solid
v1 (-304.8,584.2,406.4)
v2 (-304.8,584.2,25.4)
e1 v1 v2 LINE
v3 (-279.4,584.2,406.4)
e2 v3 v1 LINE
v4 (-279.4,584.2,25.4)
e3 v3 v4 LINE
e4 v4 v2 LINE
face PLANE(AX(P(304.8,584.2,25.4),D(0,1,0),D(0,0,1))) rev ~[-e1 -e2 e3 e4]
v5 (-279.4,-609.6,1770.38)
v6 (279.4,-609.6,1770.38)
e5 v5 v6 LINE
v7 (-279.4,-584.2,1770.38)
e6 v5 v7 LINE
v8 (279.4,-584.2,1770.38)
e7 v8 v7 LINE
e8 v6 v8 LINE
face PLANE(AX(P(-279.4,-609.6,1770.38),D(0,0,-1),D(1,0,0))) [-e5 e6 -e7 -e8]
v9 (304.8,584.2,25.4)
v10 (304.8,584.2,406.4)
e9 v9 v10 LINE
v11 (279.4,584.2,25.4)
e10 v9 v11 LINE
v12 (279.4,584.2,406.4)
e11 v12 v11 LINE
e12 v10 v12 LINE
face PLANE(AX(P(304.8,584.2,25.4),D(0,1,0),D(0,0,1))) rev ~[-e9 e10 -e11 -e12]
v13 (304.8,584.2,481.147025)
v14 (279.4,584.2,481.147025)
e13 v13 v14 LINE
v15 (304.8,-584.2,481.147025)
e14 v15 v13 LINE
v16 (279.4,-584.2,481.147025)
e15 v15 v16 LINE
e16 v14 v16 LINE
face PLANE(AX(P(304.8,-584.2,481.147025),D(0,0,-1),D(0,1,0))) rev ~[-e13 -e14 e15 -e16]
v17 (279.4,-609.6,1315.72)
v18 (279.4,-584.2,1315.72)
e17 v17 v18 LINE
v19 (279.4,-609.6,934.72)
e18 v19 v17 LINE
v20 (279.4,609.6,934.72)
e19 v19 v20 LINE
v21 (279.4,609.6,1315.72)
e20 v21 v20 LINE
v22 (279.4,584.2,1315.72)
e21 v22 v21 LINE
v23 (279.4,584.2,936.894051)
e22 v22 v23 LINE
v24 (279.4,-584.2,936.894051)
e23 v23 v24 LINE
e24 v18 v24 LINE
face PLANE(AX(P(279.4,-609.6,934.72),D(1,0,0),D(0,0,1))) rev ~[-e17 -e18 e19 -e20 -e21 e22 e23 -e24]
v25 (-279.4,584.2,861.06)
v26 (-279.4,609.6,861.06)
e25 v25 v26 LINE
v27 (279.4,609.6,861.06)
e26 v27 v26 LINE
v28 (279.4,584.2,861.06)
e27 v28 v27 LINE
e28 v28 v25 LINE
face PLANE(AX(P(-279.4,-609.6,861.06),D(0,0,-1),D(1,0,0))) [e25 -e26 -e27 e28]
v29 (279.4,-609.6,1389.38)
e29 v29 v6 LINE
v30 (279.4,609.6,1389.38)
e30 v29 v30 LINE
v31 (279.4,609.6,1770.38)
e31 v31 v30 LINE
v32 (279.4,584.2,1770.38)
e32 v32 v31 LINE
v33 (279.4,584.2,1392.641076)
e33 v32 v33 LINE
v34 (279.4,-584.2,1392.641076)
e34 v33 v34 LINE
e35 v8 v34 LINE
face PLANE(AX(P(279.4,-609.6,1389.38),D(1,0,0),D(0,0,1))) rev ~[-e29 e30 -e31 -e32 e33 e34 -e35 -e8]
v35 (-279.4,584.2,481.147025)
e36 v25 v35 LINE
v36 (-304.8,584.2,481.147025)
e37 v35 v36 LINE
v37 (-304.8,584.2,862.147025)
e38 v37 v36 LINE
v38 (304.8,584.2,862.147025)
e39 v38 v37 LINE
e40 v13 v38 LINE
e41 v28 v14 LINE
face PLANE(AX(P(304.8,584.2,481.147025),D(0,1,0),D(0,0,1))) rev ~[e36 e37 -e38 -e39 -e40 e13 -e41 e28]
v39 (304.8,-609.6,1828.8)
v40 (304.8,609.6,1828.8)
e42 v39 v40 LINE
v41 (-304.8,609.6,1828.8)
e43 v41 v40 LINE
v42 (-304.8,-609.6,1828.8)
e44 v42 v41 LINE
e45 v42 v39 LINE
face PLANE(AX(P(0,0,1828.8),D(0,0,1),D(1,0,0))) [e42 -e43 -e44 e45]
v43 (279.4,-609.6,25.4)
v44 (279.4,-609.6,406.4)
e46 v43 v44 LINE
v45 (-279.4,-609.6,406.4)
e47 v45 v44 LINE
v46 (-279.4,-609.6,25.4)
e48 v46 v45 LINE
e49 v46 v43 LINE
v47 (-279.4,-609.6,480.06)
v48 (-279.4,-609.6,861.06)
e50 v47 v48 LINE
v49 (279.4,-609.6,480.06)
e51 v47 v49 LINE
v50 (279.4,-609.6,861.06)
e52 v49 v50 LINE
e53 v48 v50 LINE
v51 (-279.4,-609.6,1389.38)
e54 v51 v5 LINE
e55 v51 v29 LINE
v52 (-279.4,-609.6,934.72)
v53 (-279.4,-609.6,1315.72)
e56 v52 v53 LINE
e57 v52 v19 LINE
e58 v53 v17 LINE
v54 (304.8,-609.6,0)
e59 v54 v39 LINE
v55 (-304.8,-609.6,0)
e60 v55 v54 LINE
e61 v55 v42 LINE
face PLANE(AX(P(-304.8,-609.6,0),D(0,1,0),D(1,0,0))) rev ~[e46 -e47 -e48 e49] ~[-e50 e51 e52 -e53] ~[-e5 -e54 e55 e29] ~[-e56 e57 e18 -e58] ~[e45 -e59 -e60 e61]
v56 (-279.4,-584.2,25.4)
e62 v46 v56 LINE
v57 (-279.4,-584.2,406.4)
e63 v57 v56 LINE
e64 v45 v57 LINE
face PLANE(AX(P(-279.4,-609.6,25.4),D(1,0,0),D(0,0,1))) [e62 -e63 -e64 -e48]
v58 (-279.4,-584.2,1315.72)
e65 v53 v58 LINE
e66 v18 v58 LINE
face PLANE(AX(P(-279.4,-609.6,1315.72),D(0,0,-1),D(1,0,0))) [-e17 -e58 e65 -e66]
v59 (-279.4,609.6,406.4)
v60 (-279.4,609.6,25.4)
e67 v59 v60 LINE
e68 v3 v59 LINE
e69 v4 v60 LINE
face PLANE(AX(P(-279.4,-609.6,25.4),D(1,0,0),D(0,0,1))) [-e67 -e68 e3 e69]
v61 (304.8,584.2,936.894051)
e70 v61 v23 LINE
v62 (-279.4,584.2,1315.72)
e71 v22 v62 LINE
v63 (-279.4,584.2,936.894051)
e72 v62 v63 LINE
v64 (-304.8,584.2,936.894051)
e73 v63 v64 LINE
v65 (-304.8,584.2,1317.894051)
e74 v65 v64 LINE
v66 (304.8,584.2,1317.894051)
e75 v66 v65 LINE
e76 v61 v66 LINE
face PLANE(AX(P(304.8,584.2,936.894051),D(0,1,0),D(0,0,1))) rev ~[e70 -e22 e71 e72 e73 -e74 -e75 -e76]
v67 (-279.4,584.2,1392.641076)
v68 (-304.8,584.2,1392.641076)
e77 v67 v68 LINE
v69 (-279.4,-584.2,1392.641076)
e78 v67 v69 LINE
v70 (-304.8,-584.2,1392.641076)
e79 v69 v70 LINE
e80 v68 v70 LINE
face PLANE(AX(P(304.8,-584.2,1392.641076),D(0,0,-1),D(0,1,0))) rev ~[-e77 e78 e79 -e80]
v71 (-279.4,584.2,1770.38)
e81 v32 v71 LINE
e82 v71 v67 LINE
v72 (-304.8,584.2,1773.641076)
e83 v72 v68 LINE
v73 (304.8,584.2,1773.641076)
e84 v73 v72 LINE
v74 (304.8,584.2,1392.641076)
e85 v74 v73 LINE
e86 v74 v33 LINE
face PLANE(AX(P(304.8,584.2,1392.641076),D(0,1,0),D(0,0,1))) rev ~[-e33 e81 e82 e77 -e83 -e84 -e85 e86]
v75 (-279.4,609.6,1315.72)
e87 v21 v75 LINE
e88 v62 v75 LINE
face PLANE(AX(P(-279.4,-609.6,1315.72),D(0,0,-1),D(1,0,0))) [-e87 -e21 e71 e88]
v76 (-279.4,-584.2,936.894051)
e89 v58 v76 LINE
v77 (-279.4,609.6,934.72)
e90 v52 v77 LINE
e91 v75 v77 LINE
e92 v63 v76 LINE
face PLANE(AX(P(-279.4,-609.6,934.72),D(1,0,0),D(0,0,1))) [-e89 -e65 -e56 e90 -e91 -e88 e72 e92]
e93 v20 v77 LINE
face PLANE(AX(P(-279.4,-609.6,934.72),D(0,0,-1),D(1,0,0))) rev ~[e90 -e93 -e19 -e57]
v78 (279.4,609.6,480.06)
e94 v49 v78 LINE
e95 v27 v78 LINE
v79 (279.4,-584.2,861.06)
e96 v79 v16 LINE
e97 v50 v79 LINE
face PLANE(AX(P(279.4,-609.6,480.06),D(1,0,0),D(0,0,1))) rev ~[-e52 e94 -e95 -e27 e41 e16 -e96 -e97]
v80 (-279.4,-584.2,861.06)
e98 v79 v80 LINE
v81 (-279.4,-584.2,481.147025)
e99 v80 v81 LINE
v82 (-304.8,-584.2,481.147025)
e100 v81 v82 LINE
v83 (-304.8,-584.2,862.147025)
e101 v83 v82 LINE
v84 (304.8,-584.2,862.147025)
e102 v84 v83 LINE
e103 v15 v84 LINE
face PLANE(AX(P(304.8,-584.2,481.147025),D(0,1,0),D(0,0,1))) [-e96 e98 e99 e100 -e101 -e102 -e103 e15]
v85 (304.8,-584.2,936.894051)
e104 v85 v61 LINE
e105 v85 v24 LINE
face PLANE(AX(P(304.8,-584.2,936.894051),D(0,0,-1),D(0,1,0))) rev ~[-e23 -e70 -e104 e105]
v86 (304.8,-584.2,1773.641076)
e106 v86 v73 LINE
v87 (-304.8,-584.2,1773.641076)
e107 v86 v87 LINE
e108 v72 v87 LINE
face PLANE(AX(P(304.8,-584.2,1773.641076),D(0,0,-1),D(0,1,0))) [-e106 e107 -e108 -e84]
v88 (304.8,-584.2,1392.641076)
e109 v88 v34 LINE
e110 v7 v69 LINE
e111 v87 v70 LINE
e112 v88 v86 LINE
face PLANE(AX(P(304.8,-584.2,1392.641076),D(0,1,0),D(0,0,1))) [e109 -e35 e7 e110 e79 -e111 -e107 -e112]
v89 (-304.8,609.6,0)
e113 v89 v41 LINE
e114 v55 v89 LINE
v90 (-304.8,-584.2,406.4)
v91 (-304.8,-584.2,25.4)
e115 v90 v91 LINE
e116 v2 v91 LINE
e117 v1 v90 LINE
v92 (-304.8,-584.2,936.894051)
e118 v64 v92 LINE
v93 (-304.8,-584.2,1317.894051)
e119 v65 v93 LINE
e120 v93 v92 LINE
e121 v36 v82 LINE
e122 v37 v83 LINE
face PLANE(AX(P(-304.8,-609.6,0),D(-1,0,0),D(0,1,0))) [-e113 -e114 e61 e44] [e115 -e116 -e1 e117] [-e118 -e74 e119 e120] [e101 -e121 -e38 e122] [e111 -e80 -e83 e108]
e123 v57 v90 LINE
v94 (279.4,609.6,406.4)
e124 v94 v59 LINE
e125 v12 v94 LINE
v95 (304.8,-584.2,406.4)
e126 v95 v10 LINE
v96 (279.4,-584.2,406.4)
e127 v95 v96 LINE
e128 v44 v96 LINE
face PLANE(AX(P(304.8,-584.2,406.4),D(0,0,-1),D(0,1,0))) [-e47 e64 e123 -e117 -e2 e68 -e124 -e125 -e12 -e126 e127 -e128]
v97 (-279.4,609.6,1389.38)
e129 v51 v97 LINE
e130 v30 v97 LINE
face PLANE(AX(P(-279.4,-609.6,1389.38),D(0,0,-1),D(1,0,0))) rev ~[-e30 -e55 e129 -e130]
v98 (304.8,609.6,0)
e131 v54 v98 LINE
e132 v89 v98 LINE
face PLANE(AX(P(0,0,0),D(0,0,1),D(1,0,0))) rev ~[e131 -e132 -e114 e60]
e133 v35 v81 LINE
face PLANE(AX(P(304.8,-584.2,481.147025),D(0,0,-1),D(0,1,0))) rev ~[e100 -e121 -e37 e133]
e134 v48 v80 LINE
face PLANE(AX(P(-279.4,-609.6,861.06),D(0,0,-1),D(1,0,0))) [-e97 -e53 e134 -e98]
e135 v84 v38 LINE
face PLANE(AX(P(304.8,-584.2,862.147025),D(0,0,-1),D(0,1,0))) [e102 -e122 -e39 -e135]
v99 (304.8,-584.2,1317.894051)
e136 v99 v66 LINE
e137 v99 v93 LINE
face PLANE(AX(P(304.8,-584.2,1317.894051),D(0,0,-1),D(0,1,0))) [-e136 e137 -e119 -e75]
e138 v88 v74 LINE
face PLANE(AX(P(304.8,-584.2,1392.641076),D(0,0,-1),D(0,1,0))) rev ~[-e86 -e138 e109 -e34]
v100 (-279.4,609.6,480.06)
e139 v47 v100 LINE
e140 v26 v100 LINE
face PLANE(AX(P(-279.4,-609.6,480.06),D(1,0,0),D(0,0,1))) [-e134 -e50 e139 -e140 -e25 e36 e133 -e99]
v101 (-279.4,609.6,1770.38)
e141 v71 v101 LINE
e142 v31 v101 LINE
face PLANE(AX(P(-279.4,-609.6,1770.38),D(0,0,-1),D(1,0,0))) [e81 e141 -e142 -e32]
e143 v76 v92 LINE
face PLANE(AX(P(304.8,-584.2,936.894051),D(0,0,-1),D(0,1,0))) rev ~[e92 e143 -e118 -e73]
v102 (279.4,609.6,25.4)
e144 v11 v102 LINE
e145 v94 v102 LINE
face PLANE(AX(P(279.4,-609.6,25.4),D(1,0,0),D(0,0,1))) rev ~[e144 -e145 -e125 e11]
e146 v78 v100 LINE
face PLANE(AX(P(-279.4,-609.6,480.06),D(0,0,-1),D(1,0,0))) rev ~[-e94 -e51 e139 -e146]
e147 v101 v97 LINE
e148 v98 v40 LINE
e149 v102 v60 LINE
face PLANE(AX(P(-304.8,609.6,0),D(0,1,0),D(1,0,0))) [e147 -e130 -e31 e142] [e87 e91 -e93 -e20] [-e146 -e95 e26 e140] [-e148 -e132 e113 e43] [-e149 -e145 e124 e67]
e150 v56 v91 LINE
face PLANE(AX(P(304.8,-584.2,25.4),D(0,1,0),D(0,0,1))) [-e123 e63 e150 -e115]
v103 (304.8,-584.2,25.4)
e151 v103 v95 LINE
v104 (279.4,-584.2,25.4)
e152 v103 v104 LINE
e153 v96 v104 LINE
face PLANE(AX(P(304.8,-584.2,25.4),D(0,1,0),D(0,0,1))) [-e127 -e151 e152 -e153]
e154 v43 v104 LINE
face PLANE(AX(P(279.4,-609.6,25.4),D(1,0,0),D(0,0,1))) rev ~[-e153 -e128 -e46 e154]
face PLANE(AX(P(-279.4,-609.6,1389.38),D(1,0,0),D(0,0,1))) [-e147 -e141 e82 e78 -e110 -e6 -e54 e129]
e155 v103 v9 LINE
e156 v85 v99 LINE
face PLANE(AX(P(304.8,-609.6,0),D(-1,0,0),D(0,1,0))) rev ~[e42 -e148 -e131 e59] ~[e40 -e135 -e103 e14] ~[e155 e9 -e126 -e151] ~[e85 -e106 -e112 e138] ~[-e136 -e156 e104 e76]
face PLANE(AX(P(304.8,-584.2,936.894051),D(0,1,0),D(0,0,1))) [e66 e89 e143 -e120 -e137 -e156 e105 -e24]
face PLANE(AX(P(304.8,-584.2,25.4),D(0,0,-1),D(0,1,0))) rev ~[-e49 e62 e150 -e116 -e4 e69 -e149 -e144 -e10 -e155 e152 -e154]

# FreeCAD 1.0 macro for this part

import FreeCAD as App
import Part
import Sketcher
from FreeCAD import Vector
Q = App.Units.Quantity

doc = App.newDocument("Part")
body = doc.addObject("PartDesign::Body", "Body")

# Sketch on XY plane
sketch1 = body.newObject("Sketcher::SketchObject", "Sketch")
sketch1.AttachmentSupport = (doc.getObject("XY_Plane"), [""])
sketch1.MapMode = "FlatFace"
sketch1.addGeometry([
    Part.LineSegment(Vector(-305, 610, 0), Vector(-305, -610, 0)),
    Part.LineSegment(Vector(-305, -610, 0), Vector(305, -610, 0)),
    Part.LineSegment(Vector(305, -610, 0), Vector(305, 610, 0)),
    Part.LineSegment(Vector(305, 610, 0), Vector(-305, 610, 0)),
], False)
sketch1.addConstraint([
    Sketcher.Constraint("Coincident", 0, 2, 1, 1),
    Sketcher.Constraint("Coincident", 1, 2, 2, 1),
    Sketcher.Constraint("Coincident", 2, 2, 3, 1),
    Sketcher.Constraint("Coincident", 3, 2, 0, 1),
    Sketcher.Constraint("Vertical", 0),
    Sketcher.Constraint("Horizontal", 1),
    Sketcher.Constraint("Vertical", 2),
    Sketcher.Constraint("Horizontal", 3),
    Sketcher.Constraint("Symmetric", 0, 2, 2, 2, -1, 1),
    Sketcher.Constraint("DistanceX", 1, 1, 1, 2, Q("24 in")),
    Sketcher.Constraint("DistanceY", 0, 2, 0, 1, Q("48 in")),
])
pad1 = body.newObject("PartDesign::Pad", "Pad")
pad1.Profile = sketch1
pad1.Length = Q("72 in")

# Sketch on YZ plane
sketch2 = body.newObject("Sketcher::SketchObject", "Sketch001")
sketch2.AttachmentSupport = (doc.getObject("YZ_Plane"), [""])
sketch2.MapMode = "FlatFace"
sketch2.AttachmentOffset = App.Placement(Vector(0, 0, 12 * 25.4), App.Rotation())
sketch2.addGeometry([
    Part.LineSegment(Vector(-584, 406, 0), Vector(-584, 25, 0)),  # 0
    Part.LineSegment(Vector(-584, 25, 0), Vector(584, 25, 0)),  # 1
    Part.LineSegment(Vector(584, 25, 0), Vector(584, 406, 0)),  # 2
    Part.LineSegment(Vector(584, 406, 0), Vector(-584, 406, 0)),  # 3
    Part.LineSegment(Vector(-584, 862, 0), Vector(-584, 481, 0)),  # 4
    Part.LineSegment(Vector(-584, 481, 0), Vector(584, 481, 0)),  # 5
    Part.LineSegment(Vector(584, 481, 0), Vector(584, 862, 0)),  # 6
    Part.LineSegment(Vector(584, 862, 0), Vector(-584, 862, 0)),  # 7
    Part.LineSegment(Vector(-584, 1318, 0), Vector(-584, 937, 0)),  # 8
    Part.LineSegment(Vector(-584, 937, 0), Vector(584, 937, 0)),  # 9
    Part.LineSegment(Vector(584, 937, 0), Vector(584, 1318, 0)),  # 10
    Part.LineSegment(Vector(584, 1318, 0), Vector(-584, 1318, 0)),  # 11
    Part.LineSegment(Vector(-584, 1774, 0), Vector(-584, 1393, 0)),  # 12
    Part.LineSegment(Vector(-584, 1393, 0), Vector(584, 1393, 0)),  # 13
    Part.LineSegment(Vector(584, 1393, 0), Vector(584, 1774, 0)),  # 14
    Part.LineSegment(Vector(584, 1774, 0), Vector(-584, 1774, 0)),  # 15
], False)
sketch2.addConstraint([
    Sketcher.Constraint("Coincident", 0, 2, 1, 1),
    Sketcher.Constraint("Coincident", 1, 2, 2, 1),
    Sketcher.Constraint("Coincident", 2, 2, 3, 1),
    Sketcher.Constraint("Coincident", 3, 2, 0, 1),
    Sketcher.Constraint("Coincident", 4, 2, 5, 1),
    Sketcher.Constraint("Coincident", 5, 2, 6, 1),
    Sketcher.Constraint("Coincident", 6, 2, 7, 1),
    Sketcher.Constraint("Coincident", 7, 2, 4, 1),
    Sketcher.Constraint("Coincident", 8, 2, 9, 1),
    Sketcher.Constraint("Coincident", 9, 2, 10, 1),
    Sketcher.Constraint("Coincident", 10, 2, 11, 1),
    Sketcher.Constraint("Coincident", 11, 2, 8, 1),
    Sketcher.Constraint("Coincident", 12, 2, 13, 1),
    Sketcher.Constraint("Coincident", 13, 2, 14, 1),
    Sketcher.Constraint("Coincident", 14, 2, 15, 1),
    Sketcher.Constraint("Coincident", 15, 2, 12, 1),
    Sketcher.Constraint("Vertical", 0),
    Sketcher.Constraint("Horizontal", 1),
    Sketcher.Constraint("Vertical", 2),
    Sketcher.Constraint("Horizontal", 3),
    Sketcher.Constraint("Vertical", 4),
    Sketcher.Constraint("Horizontal", 5),
    Sketcher.Constraint("Vertical", 6),
    Sketcher.Constraint("Horizontal", 7),
    Sketcher.Constraint("Vertical", 8),
    Sketcher.Constraint("Horizontal", 9),
    Sketcher.Constraint("Vertical", 10),
    Sketcher.Constraint("Horizontal", 11),
    Sketcher.Constraint("Vertical", 12),
    Sketcher.Constraint("Horizontal", 13),
    Sketcher.Constraint("Vertical", 14),
    Sketcher.Constraint("Horizontal", 15),
    Sketcher.Constraint("Vertical", 3, 2, 4, 2),
    Sketcher.Constraint("Vertical", 2, 2, 5, 2),
    Sketcher.Constraint("Vertical", 7, 2, 8, 2),
    Sketcher.Constraint("Vertical", 6, 2, 9, 2),
    Sketcher.Constraint("Vertical", 11, 2, 12, 2),
    Sketcher.Constraint("Vertical", 10, 2, 13, 2),
    Sketcher.Constraint("Equal", 2, 4),
    Sketcher.Constraint("Equal", 6, 8),
    Sketcher.Constraint("Equal", 10, 12),
    Sketcher.Constraint("DistanceX", 1, 1, 1, 2, Q("46 in")),
    Sketcher.Constraint("DistanceY", 0, 2, 0, 1, Q("15 in")),
    Sketcher.Constraint("DistanceX", 0, 2, -1, 1, Q("23 in")),
    Sketcher.Constraint("DistanceY", -1, 1, 0, 2, Q("1 in")),
    Sketcher.Constraint("DistanceY", -1, 1, 8, 2, 936.894051),
    Sketcher.Constraint("DistanceY", 7, 2, 12, 2, 530.494051),
    Sketcher.Constraint("DistanceY", -1, 1, 4, 2, 481.147025),
])
pocket1 = body.newObject("PartDesign::Pocket", "Pocket")
pocket1.Profile = sketch2
pocket1.Type = "ThroughAll"

# Sketch on XZ plane
sketch3 = body.newObject("Sketcher::SketchObject", "Sketch002")
sketch3.AttachmentSupport = (doc.getObject("XZ_Plane"), [""])
sketch3.MapMode = "FlatFace"
sketch3.AttachmentOffset = App.Placement(Vector(0, 0, 24 * 25.4), App.Rotation())
sketch3.addGeometry([
    Part.LineSegment(Vector(-279, 406, 0), Vector(-279, 25, 0)),  # 0
    Part.LineSegment(Vector(-279, 25, 0), Vector(279, 25, 0)),  # 1
    Part.LineSegment(Vector(279, 25, 0), Vector(279, 406, 0)),  # 2
    Part.LineSegment(Vector(279, 406, 0), Vector(-279, 406, 0)),  # 3
    Part.LineSegment(Vector(-279, 861, 0), Vector(-279, 480, 0)),  # 4
    Part.LineSegment(Vector(-279, 480, 0), Vector(279, 480, 0)),  # 5
    Part.LineSegment(Vector(279, 480, 0), Vector(279, 861, 0)),  # 6
    Part.LineSegment(Vector(279, 861, 0), Vector(-279, 861, 0)),  # 7
    Part.LineSegment(Vector(-279, 1316, 0), Vector(-279, 935, 0)),  # 8
    Part.LineSegment(Vector(-279, 935, 0), Vector(279, 935, 0)),  # 9
    Part.LineSegment(Vector(279, 935, 0), Vector(279, 1316, 0)),  # 10
    Part.LineSegment(Vector(279, 1316, 0), Vector(-279, 1316, 0)),  # 11
    Part.LineSegment(Vector(-279, 1770, 0), Vector(-279, 1389, 0)),  # 12
    Part.LineSegment(Vector(-279, 1389, 0), Vector(279, 1389, 0)),  # 13
    Part.LineSegment(Vector(279, 1389, 0), Vector(279, 1770, 0)),  # 14
    Part.LineSegment(Vector(279, 1770, 0), Vector(-279, 1770, 0)),  # 15
], False)
sketch3.addConstraint([
    Sketcher.Constraint("Coincident", 0, 2, 1, 1),
    Sketcher.Constraint("Coincident", 1, 2, 2, 1),
    Sketcher.Constraint("Coincident", 2, 2, 3, 1),
    Sketcher.Constraint("Coincident", 3, 2, 0, 1),
    Sketcher.Constraint("Coincident", 4, 2, 5, 1),
    Sketcher.Constraint("Coincident", 5, 2, 6, 1),
    Sketcher.Constraint("Coincident", 6, 2, 7, 1),
    Sketcher.Constraint("Coincident", 7, 2, 4, 1),
    Sketcher.Constraint("Coincident", 8, 2, 9, 1),
    Sketcher.Constraint("Coincident", 9, 2, 10, 1),
    Sketcher.Constraint("Coincident", 10, 2, 11, 1),
    Sketcher.Constraint("Coincident", 11, 2, 8, 1),
    Sketcher.Constraint("Coincident", 12, 2, 13, 1),
    Sketcher.Constraint("Coincident", 13, 2, 14, 1),
    Sketcher.Constraint("Coincident", 14, 2, 15, 1),
    Sketcher.Constraint("Coincident", 15, 2, 12, 1),
    Sketcher.Constraint("Vertical", 0),
    Sketcher.Constraint("Horizontal", 1),
    Sketcher.Constraint("Vertical", 2),
    Sketcher.Constraint("Horizontal", 3),
    Sketcher.Constraint("Vertical", 4),
    Sketcher.Constraint("Horizontal", 5),
    Sketcher.Constraint("Vertical", 6),
    Sketcher.Constraint("Horizontal", 7),
    Sketcher.Constraint("Vertical", 8),
    Sketcher.Constraint("Horizontal", 9),
    Sketcher.Constraint("Vertical", 10),
    Sketcher.Constraint("Horizontal", 11),
    Sketcher.Constraint("Vertical", 12),
    Sketcher.Constraint("Horizontal", 13),
    Sketcher.Constraint("Vertical", 14),
    Sketcher.Constraint("Horizontal", 15),
    Sketcher.Constraint("Vertical", 3, 2, 4, 2),
    Sketcher.Constraint("Vertical", 2, 2, 5, 2),
    Sketcher.Constraint("Vertical", 7, 2, 8, 2),
    Sketcher.Constraint("Vertical", 6, 2, 9, 2),
    Sketcher.Constraint("Vertical", 11, 2, 12, 2),
    Sketcher.Constraint("Vertical", 10, 2, 13, 2),
    Sketcher.Constraint("Equal", 2, 4),
    Sketcher.Constraint("Equal", 6, 8),
    Sketcher.Constraint("Equal", 10, 12),
    Sketcher.Constraint("DistanceX", 1, 1, 1, 2, Q("22 in")),
    Sketcher.Constraint("DistanceY", 0, 2, 0, 1, Q("15 in")),
    Sketcher.Constraint("DistanceX", 0, 2, -1, 1, Q("11 in")),
    Sketcher.Constraint("DistanceY", -1, 1, 0, 2, Q("1 in")),
    Sketcher.Constraint("DistanceY", -1, 1, 4, 2, Q("18.9 in")),
    Sketcher.Constraint("DistanceY", -1, 1, 8, 2, Q("36.8 in")),
    Sketcher.Constraint("DistanceY", -1, 1, 12, 2, Q("54.7 in")),
])
pocket2 = body.newObject("PartDesign::Pocket", "Pocket001")
pocket2.Profile = sketch3
pocket2.Type = "ThroughAll"

doc.recompute()
